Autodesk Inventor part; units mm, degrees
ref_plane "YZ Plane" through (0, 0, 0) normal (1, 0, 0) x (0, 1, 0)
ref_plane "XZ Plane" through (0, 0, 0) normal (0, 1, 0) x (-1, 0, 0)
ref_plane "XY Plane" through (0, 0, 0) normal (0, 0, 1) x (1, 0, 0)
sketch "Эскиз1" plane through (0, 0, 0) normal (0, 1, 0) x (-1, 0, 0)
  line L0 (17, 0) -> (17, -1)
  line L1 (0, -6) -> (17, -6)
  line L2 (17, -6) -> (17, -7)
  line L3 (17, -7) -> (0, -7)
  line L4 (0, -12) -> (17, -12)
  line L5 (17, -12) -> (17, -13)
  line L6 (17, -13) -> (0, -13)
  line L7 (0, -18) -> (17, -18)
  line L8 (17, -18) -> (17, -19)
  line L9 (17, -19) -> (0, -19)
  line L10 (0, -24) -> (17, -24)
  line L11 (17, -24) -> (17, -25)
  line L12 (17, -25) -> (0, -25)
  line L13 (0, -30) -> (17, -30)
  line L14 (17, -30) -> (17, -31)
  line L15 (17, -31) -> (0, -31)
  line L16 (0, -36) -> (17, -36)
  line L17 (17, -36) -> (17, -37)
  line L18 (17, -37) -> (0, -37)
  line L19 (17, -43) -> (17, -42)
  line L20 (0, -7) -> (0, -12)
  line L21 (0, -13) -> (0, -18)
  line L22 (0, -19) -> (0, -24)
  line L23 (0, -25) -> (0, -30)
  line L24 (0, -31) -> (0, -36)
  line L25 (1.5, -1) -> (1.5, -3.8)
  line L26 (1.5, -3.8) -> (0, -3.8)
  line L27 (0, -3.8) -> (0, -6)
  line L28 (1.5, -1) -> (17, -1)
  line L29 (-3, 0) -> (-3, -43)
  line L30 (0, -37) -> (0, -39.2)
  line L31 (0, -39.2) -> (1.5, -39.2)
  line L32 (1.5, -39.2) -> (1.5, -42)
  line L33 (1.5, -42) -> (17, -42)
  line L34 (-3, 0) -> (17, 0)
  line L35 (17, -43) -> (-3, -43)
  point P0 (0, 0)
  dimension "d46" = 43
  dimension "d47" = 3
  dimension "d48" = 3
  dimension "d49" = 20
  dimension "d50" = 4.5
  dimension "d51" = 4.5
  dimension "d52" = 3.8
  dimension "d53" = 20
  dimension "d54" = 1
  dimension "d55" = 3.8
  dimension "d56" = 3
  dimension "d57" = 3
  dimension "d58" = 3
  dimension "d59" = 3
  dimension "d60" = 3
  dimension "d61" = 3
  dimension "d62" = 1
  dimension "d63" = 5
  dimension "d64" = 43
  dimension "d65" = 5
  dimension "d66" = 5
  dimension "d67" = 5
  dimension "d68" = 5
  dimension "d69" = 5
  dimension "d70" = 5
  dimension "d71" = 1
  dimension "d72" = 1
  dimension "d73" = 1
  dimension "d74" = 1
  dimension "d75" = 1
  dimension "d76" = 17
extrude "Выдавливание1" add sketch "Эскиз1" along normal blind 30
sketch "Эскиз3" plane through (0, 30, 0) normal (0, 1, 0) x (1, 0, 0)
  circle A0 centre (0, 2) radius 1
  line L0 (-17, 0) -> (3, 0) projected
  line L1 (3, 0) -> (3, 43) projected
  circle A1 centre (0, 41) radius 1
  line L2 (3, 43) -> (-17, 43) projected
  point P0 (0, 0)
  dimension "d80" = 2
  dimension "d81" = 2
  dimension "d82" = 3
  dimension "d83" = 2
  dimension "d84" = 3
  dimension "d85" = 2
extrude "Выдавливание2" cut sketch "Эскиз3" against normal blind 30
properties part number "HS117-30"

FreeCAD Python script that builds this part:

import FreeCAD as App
import Part
import Sketcher

V = App.Vector
Q = App.Units.Quantity


def add_polygon(sketch, points):
    """Adds a closed chain of lines whose ends are joined by coincident constraints."""
    first, n = sketch.GeometryCount, len(points)
    for a, b in zip(points, points[1:] + points[:1]):
        sketch.addGeometry(Part.LineSegment(App.Vector(*a, 0), App.Vector(*b, 0)), False)
    for i in range(n):
        sketch.addConstraint(Sketcher.Constraint("Coincident", first + i, 2, first + (i + 1) % n, 1))

doc = App.newDocument("Part")
params = doc.addObject("Spreadsheet::Sheet", "Params")
for row, (alias, value) in enumerate([
    ("sketch1_width", "20 mm"),
    ("sketch1_width2", "17 mm"),
    ("sketch1_height", "1 mm"),
    ("sketch1_height2", "43 mm"),
    ("sketch1_height3", "5 mm"),
    ("pad1_length", "30 mm"),
    ("sketch2_diameter", "2 mm"),
    ("pocket1_length", "30 mm"),
], start=1):
    params.set(f"A{row}", alias)
    params.set(f"B{row}", "=" + value)
    params.setAlias(f"B{row}", alias)

body = doc.addObject("PartDesign::Body", "Body")

# Sketch on XZ plane
sketch1 = body.newObject("Sketcher::SketchObject", "Sketch")
sketch1.AttachmentSupport = (doc.getObject("XZ_Plane"), [""])
sketch1.MapMode = "FlatFace"
add_polygon(sketch1, [(-17, -1), (-17, 0), (3, 0), (3, -43), (-17, -43), (-17, -42), (-1.5, -42), (-1.5, -39.2), (0, -39.2), (0, -37), (-17, -37), (-17, -36), (0, -36), (0, -31), (-17, -31), (-17, -30), (0, -30), (0, -25), (-17, -25), (-17, -24), (0, -24), (0, -19), (-17, -19), (-17, -18), (0, -18), (0, -13), (-17, -13), (-17, -12), (0, -12), (0, -7), (-17, -7), (-17, -6), (0, -6), (0, -3.8), (-1.5, -3.8), (-1.5, -1)])  # lines 0-35
sketch1.addConstraint(Sketcher.Constraint("Vertical", 0))
sketch1.addConstraint(Sketcher.Constraint("Horizontal", 1))
sketch1.addConstraint(Sketcher.Constraint("Vertical", 2))
sketch1.addConstraint(Sketcher.Constraint("Horizontal", 3))
sketch1.addConstraint(Sketcher.Constraint("Vertical", 4))
sketch1.addConstraint(Sketcher.Constraint("Horizontal", 5))
sketch1.addConstraint(Sketcher.Constraint("Vertical", 6))
sketch1.addConstraint(Sketcher.Constraint("Horizontal", 7))
sketch1.addConstraint(Sketcher.Constraint("Vertical", 8))
sketch1.addConstraint(Sketcher.Constraint("Horizontal", 9))
sketch1.addConstraint(Sketcher.Constraint("Vertical", 10))
sketch1.addConstraint(Sketcher.Constraint("Horizontal", 11))
sketch1.addConstraint(Sketcher.Constraint("Vertical", 12))
sketch1.addConstraint(Sketcher.Constraint("Horizontal", 13))
sketch1.addConstraint(Sketcher.Constraint("Vertical", 14))
sketch1.addConstraint(Sketcher.Constraint("Horizontal", 15))
sketch1.addConstraint(Sketcher.Constraint("Vertical", 16))
sketch1.addConstraint(Sketcher.Constraint("Horizontal", 17))
sketch1.addConstraint(Sketcher.Constraint("Vertical", 18))
sketch1.addConstraint(Sketcher.Constraint("Horizontal", 19))
sketch1.addConstraint(Sketcher.Constraint("Vertical", 20))
sketch1.addConstraint(Sketcher.Constraint("Horizontal", 21))
sketch1.addConstraint(Sketcher.Constraint("Vertical", 22))
sketch1.addConstraint(Sketcher.Constraint("Horizontal", 23))
sketch1.addConstraint(Sketcher.Constraint("Vertical", 24))
sketch1.addConstraint(Sketcher.Constraint("Horizontal", 25))
sketch1.addConstraint(Sketcher.Constraint("Vertical", 26))
sketch1.addConstraint(Sketcher.Constraint("Horizontal", 27))
sketch1.addConstraint(Sketcher.Constraint("Vertical", 28))
sketch1.addConstraint(Sketcher.Constraint("Horizontal", 29))
sketch1.addConstraint(Sketcher.Constraint("Vertical", 30))
sketch1.addConstraint(Sketcher.Constraint("Horizontal", 31))
sketch1.addConstraint(Sketcher.Constraint("Vertical", 32))
sketch1.addConstraint(Sketcher.Constraint("Horizontal", 33))
sketch1.addConstraint(Sketcher.Constraint("Vertical", 34))
sketch1.addConstraint(Sketcher.Constraint("Horizontal", 35))
sketch1.addConstraint(Sketcher.Constraint("PointOnObject", 0, 2, -1))
sketch1.addConstraint(Sketcher.Constraint("PointOnObject", 7, 2, -2))
sketch1.addConstraint(Sketcher.Constraint("PointOnObject", 11, 2, -2))
sketch1.addConstraint(Sketcher.Constraint("PointOnObject", 15, 2, -2))
sketch1.addConstraint(Sketcher.Constraint("PointOnObject", 19, 2, -2))
sketch1.addConstraint(Sketcher.Constraint("PointOnObject", 23, 2, -2))
sketch1.addConstraint(Sketcher.Constraint("PointOnObject", 27, 2, -2))
sketch1.addConstraint(Sketcher.Constraint("PointOnObject", 31, 2, -2))
sketch1.addConstraint(Sketcher.Constraint("Vertical", 0, 2, 3, 2))
sketch1.addConstraint(Sketcher.Constraint("Vertical", 4, 2, 9, 2))
sketch1.addConstraint(Sketcher.Constraint("Vertical", 10, 2, 13, 2))
sketch1.addConstraint(Sketcher.Constraint("Vertical", 14, 2, 17, 2))
sketch1.addConstraint(Sketcher.Constraint("Vertical", 18, 2, 21, 2))
sketch1.addConstraint(Sketcher.Constraint("Vertical", 22, 2, 25, 2))
sketch1.addConstraint(Sketcher.Constraint("Vertical", 26, 2, 29, 2))
sketch1.addConstraint(Sketcher.Constraint("Vertical", 6, 2, 33, 2))
sketch1.addConstraint(Sketcher.Constraint("Equal", 0, 4))
sketch1.addConstraint(Sketcher.Constraint("Equal", 4, 10))
sketch1.addConstraint(Sketcher.Constraint("Equal", 10, 14))
sketch1.addConstraint(Sketcher.Constraint("Equal", 12, 16))
sketch1.addConstraint(Sketcher.Constraint("Equal", 14, 18))
sketch1.addConstraint(Sketcher.Constraint("Equal", 16, 20))
sketch1.addConstraint(Sketcher.Constraint("Equal", 18, 22))
sketch1.addConstraint(Sketcher.Constraint("Equal", 20, 24))
sketch1.addConstraint(Sketcher.Constraint("Equal", 22, 26))
sketch1.addConstraint(Sketcher.Constraint("Equal", 24, 28))
sketch1.addConstraint(Sketcher.Constraint("Equal", 26, 30))
sketch1.addConstraint(Sketcher.Constraint("Equal", 8, 32))
sketch1.addConstraint(Sketcher.Constraint("Equal", 6, 34))
sketch1.addConstraint(Sketcher.Constraint("DistanceX", 1, 1, 1, 2, Q("20 mm")))
sketch1.addConstraint(Sketcher.Constraint("DistanceX", 9, 2, 9, 1, Q("17 mm")))
sketch1.addConstraint(Sketcher.Constraint("DistanceY", 0, 1, 0, 2, Q("1 mm")))
sketch1.addConstraint(Sketcher.Constraint("DistanceY", 2, 2, 2, 1, Q("43 mm")))
sketch1.addConstraint(Sketcher.Constraint("DistanceY", 12, 1, 12, 2, Q("5 mm")))
sketch1.addConstraint(Sketcher.Constraint("DistanceY", 32, 2, -1, 1, Q("3.8 mm")))
sketch1.addConstraint(Sketcher.Constraint("DistanceX", 5, 2, 2, 2, Q("4.5 mm")))
sketch1.setExpression("Constraints[101]", "Params.sketch1_width")
sketch1.setExpression("Constraints[102]", "Params.sketch1_width2")
sketch1.setExpression("Constraints[103]", "Params.sketch1_height")
sketch1.setExpression("Constraints[104]", "Params.sketch1_height2")
sketch1.setExpression("Constraints[105]", "Params.sketch1_height3")
pad1 = body.newObject("PartDesign::Pad", "Pad")
pad1.Profile = sketch1
pad1.setExpression("Length", "Params.pad1_length")
pad1.Reversed = True

# Sketch on XZ plane
sketch2 = body.newObject("Sketcher::SketchObject", "Sketch001")
sketch2.AttachmentSupport = (doc.getObject("XZ_Plane"), [""])
sketch2.MapMode = "FlatFace"
sketch2.AttachmentOffset = App.Placement(V(0, 0, -30), App.Rotation())
sketch2.addGeometry(Part.Circle(V(0, -2, 0), V(0, 0, 1), 1), False)
sketch2.addGeometry(Part.Circle(V(0, -41, 0), V(0, 0, 1), 1), False)
sketch2.addConstraint(Sketcher.Constraint("Equal", 0, 1))
sketch2.addConstraint(Sketcher.Constraint("PointOnObject", 0, 3, -2))
sketch2.addConstraint(Sketcher.Constraint("PointOnObject", 1, 3, -2))
sketch2.addConstraint(Sketcher.Constraint("Diameter", 0, Q("2 mm")))
sketch2.addConstraint(Sketcher.Constraint("DistanceY", 0, 3, -1, 1, Q("2 mm")))
sketch2.addConstraint(Sketcher.Constraint("DistanceY", 1, 3, -1, 1, Q("41 mm")))
sketch2.setExpression("Constraints[3]", "Params.sketch2_diameter")
pocket1 = body.newObject("PartDesign::Pocket", "Pocket")
pocket1.Profile = sketch2
pocket1.setExpression("Length", "Params.pocket1_length")
pocket1.Reversed = True

doc.recompute()
